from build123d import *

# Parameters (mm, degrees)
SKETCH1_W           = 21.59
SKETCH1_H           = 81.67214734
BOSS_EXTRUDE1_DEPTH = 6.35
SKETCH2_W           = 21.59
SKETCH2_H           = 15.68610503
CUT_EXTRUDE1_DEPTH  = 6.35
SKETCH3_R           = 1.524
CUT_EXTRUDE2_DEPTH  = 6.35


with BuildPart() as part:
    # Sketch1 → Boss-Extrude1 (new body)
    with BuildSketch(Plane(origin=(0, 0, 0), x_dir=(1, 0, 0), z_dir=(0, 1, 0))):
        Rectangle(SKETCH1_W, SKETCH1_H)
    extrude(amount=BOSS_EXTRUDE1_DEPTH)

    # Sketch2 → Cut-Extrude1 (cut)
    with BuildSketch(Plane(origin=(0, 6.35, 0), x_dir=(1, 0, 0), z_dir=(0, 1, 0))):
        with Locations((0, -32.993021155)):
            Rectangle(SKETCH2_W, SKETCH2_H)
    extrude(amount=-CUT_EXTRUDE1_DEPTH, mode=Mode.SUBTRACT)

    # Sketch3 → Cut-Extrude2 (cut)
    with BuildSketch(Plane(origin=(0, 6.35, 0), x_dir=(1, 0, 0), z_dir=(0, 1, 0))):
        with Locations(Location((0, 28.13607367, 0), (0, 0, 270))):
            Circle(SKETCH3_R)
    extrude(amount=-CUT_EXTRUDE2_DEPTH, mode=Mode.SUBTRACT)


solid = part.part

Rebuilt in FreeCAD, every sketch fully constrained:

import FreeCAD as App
import Part
import Sketcher
Q = App.Units.Quantity


def add_polygon(sketch, points):
    """Adds a closed chain of lines whose ends are joined by coincident constraints."""
    first, n = sketch.GeometryCount, len(points)
    for a, b in zip(points, points[1:] + points[:1]):
        sketch.addGeometry(Part.LineSegment(App.Vector(*a, 0), App.Vector(*b, 0)), False)
    for i in range(n):
        sketch.addConstraint(Sketcher.Constraint("Coincident", first + i, 2, first + (i + 1) % n, 1))

doc = App.newDocument("Part")
params = doc.addObject("Spreadsheet::Sheet", "Params")
for row, (alias, value) in enumerate([
    ("sketch1_width", "0.85 in"),
    ("pad1_length", "0.25 in"),
    ("sketch2_width", "0.85 in"),
    ("pocket1_length", "0.25 in"),
    ("sketch3_diameter", "0.12 in"),
    ("pocket2_length", "0.25 in"),
], start=1):
    params.set(f"A{row}", alias)
    params.set(f"B{row}", "=" + value)
    params.setAlias(f"B{row}", alias)

body = doc.addObject("PartDesign::Body", "Body")

# Sketch on XZ plane
sketch1 = doc.addObject("Sketcher::SketchObject", "Sketch")
body.addObject(sketch1)
sketch1.AttachmentSupport = (doc.XZ_Plane, [""])
sketch1.MapMode = "FlatFace"
add_polygon(sketch1, [(-11, -41), (-11, 41), (11, 41), (11, -41)])  # lines 0-3
sketch1.addConstraint(Sketcher.Constraint("Vertical", 0))
sketch1.addConstraint(Sketcher.Constraint("Horizontal", 1))
sketch1.addConstraint(Sketcher.Constraint("Vertical", 2))
sketch1.addConstraint(Sketcher.Constraint("Horizontal", 3))
sketch1.addConstraint(Sketcher.Constraint("Symmetric", 0, 2, 2, 2, -1, 1))
sketch1.addConstraint(Sketcher.Constraint("DistanceX", 1, 1, 1, 2, Q("0.85 in")))
sketch1.addConstraint(Sketcher.Constraint("DistanceY", 0, 1, 0, 2, 81.672147))
sketch1.setExpression("Constraints[9]", "Params.sketch1_width")
pad1 = doc.addObject("PartDesign::Pad", "Pad")
body.addObject(pad1)
pad1.Profile = sketch1
pad1.setExpression("Length", "Params.pad1_length")
pad1.Reversed = True

# Sketch on XZ plane
sketch2 = doc.addObject("Sketcher::SketchObject", "Sketch001")
body.addObject(sketch2)
sketch2.AttachmentSupport = (doc.XZ_Plane, [""])
sketch2.MapMode = "FlatFace"
sketch2.AttachmentOffset = App.Placement(App.Vector(0, 0, -0.25 * 25.4), App.Rotation())
add_polygon(sketch2, [(-11, 25), (-11, 41), (11, 41), (11, 25)])  # lines 0-3
sketch2.addConstraint(Sketcher.Constraint("Vertical", 0))
sketch2.addConstraint(Sketcher.Constraint("Horizontal", 1))
sketch2.addConstraint(Sketcher.Constraint("Vertical", 2))
sketch2.addConstraint(Sketcher.Constraint("Horizontal", 3))
sketch2.addConstraint(Sketcher.Constraint("DistanceX", 1, 1, 1, 2, Q("0.85 in")))
sketch2.addConstraint(Sketcher.Constraint("DistanceX", 0, 2, -1, 1, Q("0.425 in")))
sketch2.addConstraint(Sketcher.Constraint("DistanceY", 0, 1, 0, 2, 15.686105))
sketch2.addConstraint(Sketcher.Constraint("DistanceY", -1, 1, 2, 2, 25.149969))
sketch2.setExpression("Constraints[8]", "Params.sketch2_width")
pocket1 = doc.addObject("PartDesign::Pocket", "Pocket")
body.addObject(pocket1)
pocket1.Profile = sketch2
pocket1.setExpression("Length", "Params.pocket1_length")
pocket1.Reversed = True

# Sketch on XZ plane
sketch3 = doc.addObject("Sketcher::SketchObject", "Sketch002")
body.addObject(sketch3)
sketch3.AttachmentSupport = (doc.XZ_Plane, [""])
sketch3.MapMode = "FlatFace"
sketch3.AttachmentOffset = App.Placement(App.Vector(0, 0, -0.25 * 25.4), App.Rotation())
sketch3.addGeometry(Part.Circle(App.Vector(0, -28.1, 0), App.Vector(0, 0, 1), 1.5), False)
sketch3.addConstraint(Sketcher.Constraint("PointOnObject", 0, 3, -2))
sketch3.addConstraint(Sketcher.Constraint("Diameter", 0, Q("0.12 in")))
sketch3.addConstraint(Sketcher.Constraint("DistanceY", 0, 3, -1, 1, 28.136074))
sketch3.setExpression("Constraints[1]", "Params.sketch3_diameter")
pocket2 = doc.addObject("PartDesign::Pocket", "Pocket001")
body.addObject(pocket2)
pocket2.Profile = sketch3
pocket2.setExpression("Length", "Params.pocket2_length")
pocket2.Reversed = True

doc.recompute()
